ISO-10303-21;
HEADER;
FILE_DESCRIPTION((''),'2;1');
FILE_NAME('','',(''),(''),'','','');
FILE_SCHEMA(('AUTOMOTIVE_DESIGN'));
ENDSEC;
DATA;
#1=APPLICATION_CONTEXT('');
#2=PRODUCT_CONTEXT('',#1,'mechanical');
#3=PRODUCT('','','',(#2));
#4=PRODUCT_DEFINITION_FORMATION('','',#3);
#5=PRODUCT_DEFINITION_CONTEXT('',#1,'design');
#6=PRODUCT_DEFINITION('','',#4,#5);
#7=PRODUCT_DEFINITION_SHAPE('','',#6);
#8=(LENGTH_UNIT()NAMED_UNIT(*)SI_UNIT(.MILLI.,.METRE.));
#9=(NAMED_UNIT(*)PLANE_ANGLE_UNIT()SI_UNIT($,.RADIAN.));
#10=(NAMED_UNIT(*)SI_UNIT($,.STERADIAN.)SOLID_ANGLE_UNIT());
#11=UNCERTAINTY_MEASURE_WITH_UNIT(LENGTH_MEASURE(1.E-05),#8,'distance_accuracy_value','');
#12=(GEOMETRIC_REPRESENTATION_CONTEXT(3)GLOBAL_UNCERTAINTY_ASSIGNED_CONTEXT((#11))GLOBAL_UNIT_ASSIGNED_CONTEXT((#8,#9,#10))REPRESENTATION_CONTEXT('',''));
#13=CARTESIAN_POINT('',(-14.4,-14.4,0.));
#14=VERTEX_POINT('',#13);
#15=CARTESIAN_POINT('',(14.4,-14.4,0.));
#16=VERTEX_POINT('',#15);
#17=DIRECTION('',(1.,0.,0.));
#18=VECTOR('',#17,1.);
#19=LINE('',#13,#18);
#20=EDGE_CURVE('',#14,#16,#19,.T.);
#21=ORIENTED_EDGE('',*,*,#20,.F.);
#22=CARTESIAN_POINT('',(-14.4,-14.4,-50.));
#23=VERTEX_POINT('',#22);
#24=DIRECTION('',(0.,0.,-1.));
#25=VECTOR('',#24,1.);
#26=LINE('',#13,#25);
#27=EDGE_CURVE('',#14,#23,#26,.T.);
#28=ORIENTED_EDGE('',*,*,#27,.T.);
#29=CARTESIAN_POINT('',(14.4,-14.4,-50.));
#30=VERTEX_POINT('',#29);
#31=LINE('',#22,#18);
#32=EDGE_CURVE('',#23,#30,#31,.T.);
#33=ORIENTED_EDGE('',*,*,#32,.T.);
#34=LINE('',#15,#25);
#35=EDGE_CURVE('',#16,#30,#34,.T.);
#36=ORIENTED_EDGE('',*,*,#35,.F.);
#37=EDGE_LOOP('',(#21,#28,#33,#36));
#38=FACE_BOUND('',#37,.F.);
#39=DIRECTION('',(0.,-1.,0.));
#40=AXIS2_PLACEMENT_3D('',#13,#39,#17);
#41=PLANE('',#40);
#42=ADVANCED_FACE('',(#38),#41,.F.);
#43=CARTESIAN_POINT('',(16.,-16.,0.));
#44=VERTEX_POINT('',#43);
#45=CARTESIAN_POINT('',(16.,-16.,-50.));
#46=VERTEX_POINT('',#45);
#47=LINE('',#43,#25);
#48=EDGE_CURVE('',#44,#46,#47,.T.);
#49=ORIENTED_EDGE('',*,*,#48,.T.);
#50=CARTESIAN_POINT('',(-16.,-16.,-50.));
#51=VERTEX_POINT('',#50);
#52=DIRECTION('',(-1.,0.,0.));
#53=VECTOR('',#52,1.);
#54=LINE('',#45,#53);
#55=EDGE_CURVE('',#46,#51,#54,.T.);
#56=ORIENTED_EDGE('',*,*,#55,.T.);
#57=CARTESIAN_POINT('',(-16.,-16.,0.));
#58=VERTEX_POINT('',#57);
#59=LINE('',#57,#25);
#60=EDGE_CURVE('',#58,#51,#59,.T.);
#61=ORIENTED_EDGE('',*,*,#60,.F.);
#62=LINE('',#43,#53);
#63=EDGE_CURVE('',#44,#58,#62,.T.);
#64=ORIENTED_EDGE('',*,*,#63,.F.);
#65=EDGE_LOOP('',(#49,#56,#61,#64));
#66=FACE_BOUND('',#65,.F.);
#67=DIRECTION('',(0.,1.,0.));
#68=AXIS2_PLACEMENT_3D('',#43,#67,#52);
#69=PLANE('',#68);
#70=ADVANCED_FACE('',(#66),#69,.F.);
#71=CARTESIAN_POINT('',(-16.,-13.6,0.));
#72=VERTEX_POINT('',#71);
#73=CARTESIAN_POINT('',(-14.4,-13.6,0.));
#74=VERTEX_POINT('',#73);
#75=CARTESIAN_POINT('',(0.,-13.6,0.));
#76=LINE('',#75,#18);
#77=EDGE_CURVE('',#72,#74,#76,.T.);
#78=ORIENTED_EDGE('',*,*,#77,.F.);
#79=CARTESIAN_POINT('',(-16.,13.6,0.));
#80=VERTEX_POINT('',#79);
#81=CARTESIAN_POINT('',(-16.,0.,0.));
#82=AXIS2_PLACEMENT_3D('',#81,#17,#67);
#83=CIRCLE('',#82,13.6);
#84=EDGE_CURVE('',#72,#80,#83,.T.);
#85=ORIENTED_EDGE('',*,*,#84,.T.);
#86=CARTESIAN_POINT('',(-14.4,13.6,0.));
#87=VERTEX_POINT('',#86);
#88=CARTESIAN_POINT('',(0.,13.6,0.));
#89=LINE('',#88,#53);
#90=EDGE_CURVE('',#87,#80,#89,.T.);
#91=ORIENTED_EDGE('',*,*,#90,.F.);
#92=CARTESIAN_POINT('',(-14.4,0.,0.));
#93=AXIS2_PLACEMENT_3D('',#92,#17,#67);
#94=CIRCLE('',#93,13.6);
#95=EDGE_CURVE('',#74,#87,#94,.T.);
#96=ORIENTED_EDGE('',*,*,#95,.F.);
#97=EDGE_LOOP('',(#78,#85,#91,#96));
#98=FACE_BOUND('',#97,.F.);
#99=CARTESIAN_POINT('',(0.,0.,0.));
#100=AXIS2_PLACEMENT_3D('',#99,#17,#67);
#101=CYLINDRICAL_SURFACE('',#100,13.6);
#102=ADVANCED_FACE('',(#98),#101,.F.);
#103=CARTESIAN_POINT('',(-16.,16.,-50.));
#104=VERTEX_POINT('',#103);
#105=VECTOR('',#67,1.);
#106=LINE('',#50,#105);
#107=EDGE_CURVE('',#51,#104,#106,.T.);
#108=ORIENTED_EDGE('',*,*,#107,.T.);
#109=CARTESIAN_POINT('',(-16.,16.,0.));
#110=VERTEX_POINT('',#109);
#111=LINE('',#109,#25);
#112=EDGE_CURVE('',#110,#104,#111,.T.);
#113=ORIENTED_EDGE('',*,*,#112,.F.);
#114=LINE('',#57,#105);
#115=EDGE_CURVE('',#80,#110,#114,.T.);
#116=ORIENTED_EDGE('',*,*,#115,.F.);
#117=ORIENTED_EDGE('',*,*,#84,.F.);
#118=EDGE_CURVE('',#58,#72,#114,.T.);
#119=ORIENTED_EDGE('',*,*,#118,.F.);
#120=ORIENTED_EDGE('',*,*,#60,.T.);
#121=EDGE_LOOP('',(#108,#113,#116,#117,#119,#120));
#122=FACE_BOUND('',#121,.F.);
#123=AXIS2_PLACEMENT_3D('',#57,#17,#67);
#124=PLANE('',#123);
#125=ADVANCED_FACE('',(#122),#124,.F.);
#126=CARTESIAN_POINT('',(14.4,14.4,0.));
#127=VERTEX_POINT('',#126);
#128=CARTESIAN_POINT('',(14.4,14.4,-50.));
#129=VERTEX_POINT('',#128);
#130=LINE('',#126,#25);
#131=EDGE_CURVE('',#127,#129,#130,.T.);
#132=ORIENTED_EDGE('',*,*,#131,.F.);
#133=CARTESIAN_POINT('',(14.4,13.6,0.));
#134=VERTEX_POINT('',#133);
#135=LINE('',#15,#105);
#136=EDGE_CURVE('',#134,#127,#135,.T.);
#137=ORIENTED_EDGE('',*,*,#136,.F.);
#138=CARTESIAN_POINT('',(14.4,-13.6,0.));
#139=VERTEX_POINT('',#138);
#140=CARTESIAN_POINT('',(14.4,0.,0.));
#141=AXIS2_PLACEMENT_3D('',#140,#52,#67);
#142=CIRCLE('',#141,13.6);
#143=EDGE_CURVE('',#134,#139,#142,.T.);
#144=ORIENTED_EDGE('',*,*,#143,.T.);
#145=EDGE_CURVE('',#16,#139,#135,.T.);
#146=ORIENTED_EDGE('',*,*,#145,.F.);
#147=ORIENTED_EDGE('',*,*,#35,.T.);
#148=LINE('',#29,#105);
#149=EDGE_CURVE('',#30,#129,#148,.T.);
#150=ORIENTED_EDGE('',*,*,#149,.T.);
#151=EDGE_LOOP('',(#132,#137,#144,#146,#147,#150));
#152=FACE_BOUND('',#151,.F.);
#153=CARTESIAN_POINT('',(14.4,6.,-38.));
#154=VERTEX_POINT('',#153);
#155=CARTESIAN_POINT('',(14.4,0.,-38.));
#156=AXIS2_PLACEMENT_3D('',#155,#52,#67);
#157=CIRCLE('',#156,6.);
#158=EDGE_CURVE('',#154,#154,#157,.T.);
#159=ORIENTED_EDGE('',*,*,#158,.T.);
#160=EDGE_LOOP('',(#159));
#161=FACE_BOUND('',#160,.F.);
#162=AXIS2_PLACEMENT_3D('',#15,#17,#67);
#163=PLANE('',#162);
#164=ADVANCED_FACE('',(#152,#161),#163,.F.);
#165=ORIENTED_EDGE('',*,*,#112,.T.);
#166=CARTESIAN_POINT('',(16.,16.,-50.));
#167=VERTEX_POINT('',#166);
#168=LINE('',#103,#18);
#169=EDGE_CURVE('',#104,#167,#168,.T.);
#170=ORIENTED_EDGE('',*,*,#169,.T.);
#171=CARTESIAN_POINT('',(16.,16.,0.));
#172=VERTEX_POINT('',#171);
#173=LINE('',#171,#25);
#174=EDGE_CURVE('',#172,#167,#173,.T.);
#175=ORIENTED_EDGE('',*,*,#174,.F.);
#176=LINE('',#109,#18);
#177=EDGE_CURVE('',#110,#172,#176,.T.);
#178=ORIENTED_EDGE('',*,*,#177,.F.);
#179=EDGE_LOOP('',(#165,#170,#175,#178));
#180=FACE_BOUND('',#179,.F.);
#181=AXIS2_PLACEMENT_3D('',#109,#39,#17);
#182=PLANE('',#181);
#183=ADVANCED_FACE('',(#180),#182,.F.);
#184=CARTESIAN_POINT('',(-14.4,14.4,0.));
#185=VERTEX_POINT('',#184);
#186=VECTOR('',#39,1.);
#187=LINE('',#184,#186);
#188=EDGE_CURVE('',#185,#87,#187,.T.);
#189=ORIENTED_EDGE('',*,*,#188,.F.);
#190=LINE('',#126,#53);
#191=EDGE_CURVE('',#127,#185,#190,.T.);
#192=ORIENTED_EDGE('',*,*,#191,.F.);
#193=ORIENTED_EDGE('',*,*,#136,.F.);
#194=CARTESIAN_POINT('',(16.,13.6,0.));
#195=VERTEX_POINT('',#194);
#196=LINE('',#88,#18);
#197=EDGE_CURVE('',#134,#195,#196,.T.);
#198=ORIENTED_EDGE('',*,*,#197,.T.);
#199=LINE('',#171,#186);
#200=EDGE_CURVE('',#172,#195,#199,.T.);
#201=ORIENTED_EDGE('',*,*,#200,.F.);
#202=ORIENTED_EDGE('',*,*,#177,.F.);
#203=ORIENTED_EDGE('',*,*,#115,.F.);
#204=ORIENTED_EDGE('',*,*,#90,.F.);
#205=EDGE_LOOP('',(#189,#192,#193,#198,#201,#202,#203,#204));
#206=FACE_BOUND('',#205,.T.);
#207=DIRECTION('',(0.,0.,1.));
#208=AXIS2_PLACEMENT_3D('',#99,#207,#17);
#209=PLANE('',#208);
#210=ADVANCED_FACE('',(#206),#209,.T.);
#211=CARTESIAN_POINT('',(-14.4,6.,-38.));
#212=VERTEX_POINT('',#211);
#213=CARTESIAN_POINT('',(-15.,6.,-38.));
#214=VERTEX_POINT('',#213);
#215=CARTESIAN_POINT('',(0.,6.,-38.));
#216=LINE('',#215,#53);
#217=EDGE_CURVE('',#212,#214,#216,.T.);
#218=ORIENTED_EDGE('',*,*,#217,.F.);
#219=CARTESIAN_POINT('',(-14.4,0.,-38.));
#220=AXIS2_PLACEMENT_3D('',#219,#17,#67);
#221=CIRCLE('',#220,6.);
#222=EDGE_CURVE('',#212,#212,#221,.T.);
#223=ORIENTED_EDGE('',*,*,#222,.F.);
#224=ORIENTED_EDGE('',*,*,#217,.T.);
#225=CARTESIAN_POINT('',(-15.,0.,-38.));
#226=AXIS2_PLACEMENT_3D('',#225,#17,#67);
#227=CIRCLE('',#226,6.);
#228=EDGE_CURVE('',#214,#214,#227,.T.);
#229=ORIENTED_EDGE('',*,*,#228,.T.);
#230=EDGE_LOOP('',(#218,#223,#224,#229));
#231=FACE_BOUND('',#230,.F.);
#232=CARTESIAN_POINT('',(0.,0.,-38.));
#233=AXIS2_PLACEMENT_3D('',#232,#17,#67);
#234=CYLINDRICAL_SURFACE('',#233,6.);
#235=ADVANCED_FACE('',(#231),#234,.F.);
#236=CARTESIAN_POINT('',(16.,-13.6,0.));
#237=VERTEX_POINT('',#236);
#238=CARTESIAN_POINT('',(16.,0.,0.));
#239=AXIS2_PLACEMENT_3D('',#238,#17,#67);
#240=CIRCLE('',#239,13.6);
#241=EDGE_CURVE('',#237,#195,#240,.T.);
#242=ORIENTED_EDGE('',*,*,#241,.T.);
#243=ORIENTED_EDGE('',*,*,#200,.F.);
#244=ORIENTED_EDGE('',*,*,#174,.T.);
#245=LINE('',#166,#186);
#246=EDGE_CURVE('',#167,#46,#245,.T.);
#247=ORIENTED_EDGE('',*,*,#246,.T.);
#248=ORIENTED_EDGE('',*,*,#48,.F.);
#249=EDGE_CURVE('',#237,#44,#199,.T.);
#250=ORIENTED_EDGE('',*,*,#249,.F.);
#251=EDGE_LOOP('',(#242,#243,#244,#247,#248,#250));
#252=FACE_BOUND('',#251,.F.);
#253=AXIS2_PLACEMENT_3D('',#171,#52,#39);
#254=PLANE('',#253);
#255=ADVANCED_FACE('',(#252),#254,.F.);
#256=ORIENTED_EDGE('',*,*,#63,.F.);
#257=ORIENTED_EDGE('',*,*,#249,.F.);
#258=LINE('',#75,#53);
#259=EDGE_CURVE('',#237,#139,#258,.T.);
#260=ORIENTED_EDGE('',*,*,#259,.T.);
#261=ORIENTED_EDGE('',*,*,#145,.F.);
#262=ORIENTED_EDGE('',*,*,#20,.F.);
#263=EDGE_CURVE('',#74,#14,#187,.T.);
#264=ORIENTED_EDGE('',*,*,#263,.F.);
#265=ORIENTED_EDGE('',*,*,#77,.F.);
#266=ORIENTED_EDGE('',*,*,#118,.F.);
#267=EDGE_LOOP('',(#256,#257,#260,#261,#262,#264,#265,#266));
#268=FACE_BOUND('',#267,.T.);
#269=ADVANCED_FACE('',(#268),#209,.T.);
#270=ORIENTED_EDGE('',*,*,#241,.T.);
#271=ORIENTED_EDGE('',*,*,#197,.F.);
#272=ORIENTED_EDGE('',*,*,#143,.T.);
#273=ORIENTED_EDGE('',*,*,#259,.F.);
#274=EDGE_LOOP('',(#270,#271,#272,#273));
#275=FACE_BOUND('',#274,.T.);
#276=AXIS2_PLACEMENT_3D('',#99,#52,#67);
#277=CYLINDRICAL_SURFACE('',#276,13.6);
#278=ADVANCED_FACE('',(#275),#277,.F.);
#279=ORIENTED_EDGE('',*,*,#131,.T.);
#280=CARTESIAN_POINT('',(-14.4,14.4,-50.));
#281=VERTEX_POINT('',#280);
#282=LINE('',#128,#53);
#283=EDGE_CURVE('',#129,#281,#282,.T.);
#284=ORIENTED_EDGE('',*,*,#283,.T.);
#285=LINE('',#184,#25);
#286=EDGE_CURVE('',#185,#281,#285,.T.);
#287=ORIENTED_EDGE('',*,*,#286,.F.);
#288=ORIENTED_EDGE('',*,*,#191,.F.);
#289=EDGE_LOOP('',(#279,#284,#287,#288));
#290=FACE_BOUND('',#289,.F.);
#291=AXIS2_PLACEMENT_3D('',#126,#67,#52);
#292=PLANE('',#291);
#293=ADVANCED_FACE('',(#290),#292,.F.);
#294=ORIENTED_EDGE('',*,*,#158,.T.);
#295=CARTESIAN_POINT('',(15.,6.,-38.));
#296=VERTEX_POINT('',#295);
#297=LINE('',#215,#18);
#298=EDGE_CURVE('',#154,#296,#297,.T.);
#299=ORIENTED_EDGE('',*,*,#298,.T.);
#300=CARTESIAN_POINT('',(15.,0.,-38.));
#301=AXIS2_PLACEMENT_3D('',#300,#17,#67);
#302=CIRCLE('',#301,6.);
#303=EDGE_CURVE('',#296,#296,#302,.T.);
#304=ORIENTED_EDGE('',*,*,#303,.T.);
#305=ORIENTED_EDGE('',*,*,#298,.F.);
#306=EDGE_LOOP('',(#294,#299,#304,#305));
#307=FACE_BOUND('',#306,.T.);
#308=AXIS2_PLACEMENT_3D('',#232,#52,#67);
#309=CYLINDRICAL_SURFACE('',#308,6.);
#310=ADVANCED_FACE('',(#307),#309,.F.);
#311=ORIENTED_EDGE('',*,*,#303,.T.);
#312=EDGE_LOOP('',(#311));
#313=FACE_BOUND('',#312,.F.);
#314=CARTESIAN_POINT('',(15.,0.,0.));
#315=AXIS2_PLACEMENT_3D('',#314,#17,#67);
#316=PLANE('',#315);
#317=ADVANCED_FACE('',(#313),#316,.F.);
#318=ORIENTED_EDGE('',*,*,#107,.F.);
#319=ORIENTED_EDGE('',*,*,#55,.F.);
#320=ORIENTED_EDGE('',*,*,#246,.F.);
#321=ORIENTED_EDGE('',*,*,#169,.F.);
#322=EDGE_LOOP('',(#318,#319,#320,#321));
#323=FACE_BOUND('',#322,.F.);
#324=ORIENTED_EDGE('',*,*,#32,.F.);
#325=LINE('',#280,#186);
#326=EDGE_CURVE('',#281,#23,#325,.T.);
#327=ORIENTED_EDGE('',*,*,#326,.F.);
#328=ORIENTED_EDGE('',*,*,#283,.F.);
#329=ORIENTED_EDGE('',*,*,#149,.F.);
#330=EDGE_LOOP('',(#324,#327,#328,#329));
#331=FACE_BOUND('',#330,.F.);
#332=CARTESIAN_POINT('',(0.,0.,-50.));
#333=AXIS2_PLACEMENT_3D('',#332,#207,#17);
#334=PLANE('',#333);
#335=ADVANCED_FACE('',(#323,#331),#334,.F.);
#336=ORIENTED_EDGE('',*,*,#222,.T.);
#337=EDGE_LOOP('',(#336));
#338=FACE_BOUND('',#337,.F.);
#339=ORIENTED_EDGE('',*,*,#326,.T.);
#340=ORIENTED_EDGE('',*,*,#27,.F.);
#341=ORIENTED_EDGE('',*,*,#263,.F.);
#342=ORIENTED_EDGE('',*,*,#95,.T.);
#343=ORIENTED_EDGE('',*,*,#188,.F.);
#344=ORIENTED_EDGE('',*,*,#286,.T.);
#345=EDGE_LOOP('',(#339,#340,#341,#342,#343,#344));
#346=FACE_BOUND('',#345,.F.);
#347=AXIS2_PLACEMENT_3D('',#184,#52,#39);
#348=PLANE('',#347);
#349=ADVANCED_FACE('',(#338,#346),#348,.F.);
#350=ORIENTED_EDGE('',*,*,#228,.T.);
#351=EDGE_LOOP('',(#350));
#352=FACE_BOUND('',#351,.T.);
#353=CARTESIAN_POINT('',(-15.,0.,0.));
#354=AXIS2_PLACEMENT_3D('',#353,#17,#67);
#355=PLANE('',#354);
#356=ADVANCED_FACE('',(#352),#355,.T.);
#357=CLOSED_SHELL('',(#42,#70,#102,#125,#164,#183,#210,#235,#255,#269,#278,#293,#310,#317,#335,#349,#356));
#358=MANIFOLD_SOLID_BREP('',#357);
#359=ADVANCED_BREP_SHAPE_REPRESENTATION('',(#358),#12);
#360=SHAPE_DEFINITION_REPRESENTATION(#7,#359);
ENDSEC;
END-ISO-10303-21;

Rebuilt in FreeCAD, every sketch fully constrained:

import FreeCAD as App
import Part
import Sketcher
from FreeCAD import Vector


def add_polygon(sketch, points):
    """Adds a closed chain of lines whose ends are joined by coincident constraints."""
    first, n = sketch.GeometryCount, len(points)
    for a, b in zip(points, points[1:] + points[:1]):
        sketch.addGeometry(Part.LineSegment(App.Vector(*a, 0), App.Vector(*b, 0)), False)
    for i in range(n):
        sketch.addConstraint(Sketcher.Constraint("Coincident", first + i, 2, first + (i + 1) % n, 1))

doc = App.newDocument("Part")
body = doc.addObject("PartDesign::Body", "Body")

# Sketch on XY plane
sketch1 = body.newObject("Sketcher::SketchObject", "Sketch")
sketch1.AttachmentSupport = (doc.getObject("XY_Plane"), [""])
sketch1.MapMode = "FlatFace"
add_polygon(sketch1, [(16, 16), (-16, 16), (-16, -16), (16, -16)])  # lines 0-3
add_polygon(sketch1, [(-14, 14), (14, 14), (14, -14), (-14, -14)])  # lines 4-7
sketch1.addConstraint([
    Sketcher.Constraint("Horizontal", 0),
    Sketcher.Constraint("Vertical", 1),
    Sketcher.Constraint("Horizontal", 2),
    Sketcher.Constraint("Vertical", 3),
    Sketcher.Constraint("Horizontal", 4),
    Sketcher.Constraint("Vertical", 5),
    Sketcher.Constraint("Horizontal", 6),
    Sketcher.Constraint("Vertical", 7),
    Sketcher.Constraint("Symmetric", 0, 2, 2, 2, -1, 1),
    Sketcher.Constraint("Symmetric", 4, 2, 6, 2, -1, 1),
    Sketcher.Constraint("Equal", 2, 1),
    Sketcher.Constraint("Equal", 6, 5),
    Sketcher.Constraint("DistanceX", 0, 2, 0, 1, 32.0),
    Sketcher.Constraint("DistanceX", 4, 2, 3, 2, 1.6),
])
pad1 = body.newObject("PartDesign::Pad", "Pad")
pad1.Profile = sketch1
pad1.Length = 50
pad1.Reversed = True

# Sketch on YZ plane
sketch2 = body.newObject("Sketcher::SketchObject", "Sketch001")
sketch2.AttachmentSupport = (doc.getObject("YZ_Plane"), [""])
sketch2.MapMode = "FlatFace"
sketch2.addGeometry(Part.Circle(Vector(0, 0, 0), Vector(0, 0, 1), 14), False)
sketch2.addConstraint([
    Sketcher.Constraint("Coincident", 0, 3, -1, 1),
    Sketcher.Constraint("Diameter", 0, 27.2),
])
pocket1 = body.newObject("PartDesign::Pocket", "Pocket")
pocket1.Profile = sketch2
pocket1.Length = 32
pocket1.Midplane = True

# Sketch on YZ plane
sketch3 = body.newObject("Sketcher::SketchObject", "Sketch002")
sketch3.AttachmentSupport = (doc.getObject("YZ_Plane"), [""])
sketch3.MapMode = "FlatFace"
sketch3.addGeometry(Part.Circle(Vector(0, -38, 0), Vector(0, 0, 1), 6), False)
sketch3.addConstraint([
    Sketcher.Constraint("PointOnObject", 0, 3, -2),
    Sketcher.Constraint("Diameter", 0, 12.0),
    Sketcher.Constraint("DistanceY", 0, 3, -1, 1, 38.0),
])
pocket2 = body.newObject("PartDesign::Pocket", "Pocket001")
pocket2.Profile = sketch3
pocket2.Length = 30
pocket2.Midplane = True

doc.recompute()
